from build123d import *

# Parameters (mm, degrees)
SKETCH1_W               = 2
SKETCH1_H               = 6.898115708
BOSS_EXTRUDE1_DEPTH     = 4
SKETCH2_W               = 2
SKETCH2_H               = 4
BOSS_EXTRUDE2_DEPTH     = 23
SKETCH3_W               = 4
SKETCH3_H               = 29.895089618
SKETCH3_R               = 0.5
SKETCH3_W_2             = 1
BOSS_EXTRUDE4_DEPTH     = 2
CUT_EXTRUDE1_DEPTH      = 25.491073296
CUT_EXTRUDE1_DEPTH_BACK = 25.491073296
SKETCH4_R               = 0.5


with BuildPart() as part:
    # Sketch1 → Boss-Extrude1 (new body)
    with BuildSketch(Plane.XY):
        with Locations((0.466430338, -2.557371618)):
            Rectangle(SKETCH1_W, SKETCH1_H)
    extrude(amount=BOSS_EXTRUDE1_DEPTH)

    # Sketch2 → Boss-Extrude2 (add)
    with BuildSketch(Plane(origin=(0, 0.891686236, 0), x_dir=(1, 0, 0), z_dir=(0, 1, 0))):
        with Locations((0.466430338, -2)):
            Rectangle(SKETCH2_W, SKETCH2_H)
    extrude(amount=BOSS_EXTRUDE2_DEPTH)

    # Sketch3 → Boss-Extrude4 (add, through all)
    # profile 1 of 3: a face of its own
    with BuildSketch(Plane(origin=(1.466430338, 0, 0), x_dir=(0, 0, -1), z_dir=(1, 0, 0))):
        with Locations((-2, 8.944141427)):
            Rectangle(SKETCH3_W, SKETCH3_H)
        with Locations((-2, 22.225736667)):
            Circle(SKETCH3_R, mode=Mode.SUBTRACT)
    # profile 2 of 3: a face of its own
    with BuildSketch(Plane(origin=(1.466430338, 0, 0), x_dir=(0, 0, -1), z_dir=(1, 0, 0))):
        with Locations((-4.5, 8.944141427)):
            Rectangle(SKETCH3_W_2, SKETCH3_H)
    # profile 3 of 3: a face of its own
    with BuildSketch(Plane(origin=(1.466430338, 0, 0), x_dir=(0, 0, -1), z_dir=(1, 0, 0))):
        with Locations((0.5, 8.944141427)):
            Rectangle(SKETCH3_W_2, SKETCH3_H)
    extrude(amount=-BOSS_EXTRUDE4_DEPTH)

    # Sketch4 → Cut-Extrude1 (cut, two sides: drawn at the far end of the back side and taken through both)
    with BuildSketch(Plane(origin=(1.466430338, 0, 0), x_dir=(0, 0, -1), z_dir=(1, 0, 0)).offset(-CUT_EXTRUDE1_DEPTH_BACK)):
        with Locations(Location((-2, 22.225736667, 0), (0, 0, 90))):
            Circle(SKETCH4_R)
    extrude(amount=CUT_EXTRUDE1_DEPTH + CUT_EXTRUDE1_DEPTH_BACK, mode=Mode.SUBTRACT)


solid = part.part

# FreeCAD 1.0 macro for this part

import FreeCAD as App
import Part
import Sketcher
from FreeCAD import Vector
Q = App.Units.Quantity


def add_polygon(sketch, points):
    """Adds a closed chain of lines whose ends are joined by coincident constraints."""
    first, n = sketch.GeometryCount, len(points)
    for a, b in zip(points, points[1:] + points[:1]):
        sketch.addGeometry(Part.LineSegment(App.Vector(*a, 0), App.Vector(*b, 0)), False)
    for i in range(n):
        sketch.addConstraint(Sketcher.Constraint("Coincident", first + i, 2, first + (i + 1) % n, 1))

doc = App.newDocument("Part")
params = doc.addObject("Spreadsheet::Sheet", "Params")
for row, (alias, value) in enumerate([
    ("sketch1_width", "2 mm"),
    ("pad1_length", "4 mm"),
    ("sketch2_width", "2 mm"),
    ("sketch2_height", "4 mm"),
    ("pad2_length", "23 mm"),
    ("sketch3_diameter", "1 mm"),
    ("sketch3_height", "6 mm"),
    ("pad3_length", "2 mm"),
    ("sketch4_diameter", "1 mm"),
], start=1):
    params.set(f"A{row}", alias)
    params.set(f"B{row}", "=" + value)
    params.setAlias(f"B{row}", alias)

body = doc.addObject("PartDesign::Body", "Body")

# Sketch on XY plane
sketch1 = body.newObject("Sketcher::SketchObject", "Sketch")
sketch1.AttachmentSupport = (doc.getObject("XY_Plane"), [""])
sketch1.MapMode = "FlatFace"
add_polygon(sketch1, [(-0.53357, 0.891686), (-0.53357, -6.006429), (1.46643, -6.006429), (1.46643, 0.891686)])  # lines 0-3
sketch1.addConstraint([
    Sketcher.Constraint("Vertical", 0),
    Sketcher.Constraint("Horizontal", 1),
    Sketcher.Constraint("Vertical", 2),
    Sketcher.Constraint("Horizontal", 3),
    Sketcher.Constraint("DistanceX", 1, 1, 1, 2, Q("2 mm")),
    Sketcher.Constraint("DistanceY", 0, 2, 0, 1, Q("6.898116 mm")),
    Sketcher.Constraint("DistanceX", 0, 2, -1, 1, Q("0.53357 mm")),
    Sketcher.Constraint("DistanceY", 0, 2, -1, 1, Q("6.006429 mm")),
])
sketch1.setExpression("Constraints[8]", "Params.sketch1_width")
pad1 = body.newObject("PartDesign::Pad", "Pad")
pad1.Profile = sketch1
pad1.setExpression("Length", "Params.pad1_length")

# Sketch on XZ plane
sketch2 = body.newObject("Sketcher::SketchObject", "Sketch001")
sketch2.AttachmentSupport = (doc.getObject("XZ_Plane"), [""])
sketch2.MapMode = "FlatFace"
sketch2.AttachmentOffset = App.Placement(Vector(0, 0, -0.891686), App.Rotation())
add_polygon(sketch2, [(-0.53357, 0), (-0.53357, 4), (1.46643, 4), (1.46643, 0)])  # lines 0-3
sketch2.addConstraint([
    Sketcher.Constraint("Vertical", 0),
    Sketcher.Constraint("Horizontal", 1),
    Sketcher.Constraint("Vertical", 2),
    Sketcher.Constraint("Horizontal", 3),
    Sketcher.Constraint("PointOnObject", 2, 2, -1),
    Sketcher.Constraint("DistanceX", 1, 1, 1, 2, Q("2 mm")),
    Sketcher.Constraint("DistanceY", 0, 1, 0, 2, Q("4 mm")),
    Sketcher.Constraint("DistanceX", 0, 2, -1, 1, Q("0.53357 mm")),
])
sketch2.setExpression("Constraints[9]", "Params.sketch2_width")
sketch2.setExpression("Constraints[10]", "Params.sketch2_height")
pad2 = body.newObject("PartDesign::Pad", "Pad001")
pad2.Profile = sketch2
pad2.setExpression("Length", "Params.pad2_length")
pad2.Reversed = True

# Sketch on YZ plane
sketch3 = body.newObject("Sketcher::SketchObject", "Sketch002")
sketch3.AttachmentSupport = (doc.getObject("YZ_Plane"), [""])
sketch3.MapMode = "FlatFace"
sketch3.AttachmentOffset = App.Placement(Vector(0, 0, 1.46643), App.Rotation())
add_polygon(sketch3, [(-6.003403, -1), (23.891686, -1), (23.891686, 5), (-6.003403, 5)])  # lines 0-3
sketch3.addGeometry(Part.Circle(Vector(22.225737, 2, 0), Vector(0, 0, 1), 0.5), False)  # 4
sketch3.addConstraint([
    Sketcher.Constraint("Horizontal", 0),
    Sketcher.Constraint("Vertical", 1),
    Sketcher.Constraint("Horizontal", 2),
    Sketcher.Constraint("Vertical", 3),
    Sketcher.Constraint("Diameter", 4, Q("1 mm")),
    Sketcher.Constraint("DistanceY", 1, 1, 1, 2, Q("6 mm")),
    Sketcher.Constraint("DistanceY", -1, 1, 4, 3, Q("2 mm")),
    Sketcher.Constraint("DistanceY", 0, 2, -1, 1, Q("1 mm")),
    Sketcher.Constraint("DistanceX", 0, 1, 0, 2, Q("29.89509 mm")),
    Sketcher.Constraint("DistanceX", 4, 3, 0, 2, Q("1.66595 mm")),
    Sketcher.Constraint("DistanceX", -1, 1, 4, 3, Q("22.225737 mm")),
])
sketch3.setExpression("Constraints[8]", "Params.sketch3_diameter")
sketch3.setExpression("Constraints[9]", "Params.sketch3_height")
pad3 = body.newObject("PartDesign::Pad", "Pad002")
pad3.Profile = sketch3
pad3.setExpression("Length", "Params.pad3_length")
pad3.Reversed = True

# Sketch on YZ plane
sketch4 = body.newObject("Sketcher::SketchObject", "Sketch003")
sketch4.AttachmentSupport = (doc.getObject("YZ_Plane"), [""])
sketch4.MapMode = "FlatFace"
sketch4.AttachmentOffset = App.Placement(Vector(0, 0, 1.46643), App.Rotation())
sketch4.addGeometry(Part.Circle(Vector(22.225737, 2, 0), Vector(0, 0, 1), 0.5), False)
sketch4.addConstraint([
    Sketcher.Constraint("Diameter", 0, Q("1 mm")),
    Sketcher.Constraint("DistanceY", -1, 1, 0, 3, Q("2 mm")),
    Sketcher.Constraint("DistanceX", -1, 1, 0, 3, Q("22.225737 mm")),
])
sketch4.setExpression("Constraints[0]", "Params.sketch4_diameter")
pocket1 = body.newObject("PartDesign::Pocket", "Pocket")
pocket1.Profile = sketch4
pocket1.Type = "ThroughAll"
pocket1.Midplane = True

doc.recompute()
